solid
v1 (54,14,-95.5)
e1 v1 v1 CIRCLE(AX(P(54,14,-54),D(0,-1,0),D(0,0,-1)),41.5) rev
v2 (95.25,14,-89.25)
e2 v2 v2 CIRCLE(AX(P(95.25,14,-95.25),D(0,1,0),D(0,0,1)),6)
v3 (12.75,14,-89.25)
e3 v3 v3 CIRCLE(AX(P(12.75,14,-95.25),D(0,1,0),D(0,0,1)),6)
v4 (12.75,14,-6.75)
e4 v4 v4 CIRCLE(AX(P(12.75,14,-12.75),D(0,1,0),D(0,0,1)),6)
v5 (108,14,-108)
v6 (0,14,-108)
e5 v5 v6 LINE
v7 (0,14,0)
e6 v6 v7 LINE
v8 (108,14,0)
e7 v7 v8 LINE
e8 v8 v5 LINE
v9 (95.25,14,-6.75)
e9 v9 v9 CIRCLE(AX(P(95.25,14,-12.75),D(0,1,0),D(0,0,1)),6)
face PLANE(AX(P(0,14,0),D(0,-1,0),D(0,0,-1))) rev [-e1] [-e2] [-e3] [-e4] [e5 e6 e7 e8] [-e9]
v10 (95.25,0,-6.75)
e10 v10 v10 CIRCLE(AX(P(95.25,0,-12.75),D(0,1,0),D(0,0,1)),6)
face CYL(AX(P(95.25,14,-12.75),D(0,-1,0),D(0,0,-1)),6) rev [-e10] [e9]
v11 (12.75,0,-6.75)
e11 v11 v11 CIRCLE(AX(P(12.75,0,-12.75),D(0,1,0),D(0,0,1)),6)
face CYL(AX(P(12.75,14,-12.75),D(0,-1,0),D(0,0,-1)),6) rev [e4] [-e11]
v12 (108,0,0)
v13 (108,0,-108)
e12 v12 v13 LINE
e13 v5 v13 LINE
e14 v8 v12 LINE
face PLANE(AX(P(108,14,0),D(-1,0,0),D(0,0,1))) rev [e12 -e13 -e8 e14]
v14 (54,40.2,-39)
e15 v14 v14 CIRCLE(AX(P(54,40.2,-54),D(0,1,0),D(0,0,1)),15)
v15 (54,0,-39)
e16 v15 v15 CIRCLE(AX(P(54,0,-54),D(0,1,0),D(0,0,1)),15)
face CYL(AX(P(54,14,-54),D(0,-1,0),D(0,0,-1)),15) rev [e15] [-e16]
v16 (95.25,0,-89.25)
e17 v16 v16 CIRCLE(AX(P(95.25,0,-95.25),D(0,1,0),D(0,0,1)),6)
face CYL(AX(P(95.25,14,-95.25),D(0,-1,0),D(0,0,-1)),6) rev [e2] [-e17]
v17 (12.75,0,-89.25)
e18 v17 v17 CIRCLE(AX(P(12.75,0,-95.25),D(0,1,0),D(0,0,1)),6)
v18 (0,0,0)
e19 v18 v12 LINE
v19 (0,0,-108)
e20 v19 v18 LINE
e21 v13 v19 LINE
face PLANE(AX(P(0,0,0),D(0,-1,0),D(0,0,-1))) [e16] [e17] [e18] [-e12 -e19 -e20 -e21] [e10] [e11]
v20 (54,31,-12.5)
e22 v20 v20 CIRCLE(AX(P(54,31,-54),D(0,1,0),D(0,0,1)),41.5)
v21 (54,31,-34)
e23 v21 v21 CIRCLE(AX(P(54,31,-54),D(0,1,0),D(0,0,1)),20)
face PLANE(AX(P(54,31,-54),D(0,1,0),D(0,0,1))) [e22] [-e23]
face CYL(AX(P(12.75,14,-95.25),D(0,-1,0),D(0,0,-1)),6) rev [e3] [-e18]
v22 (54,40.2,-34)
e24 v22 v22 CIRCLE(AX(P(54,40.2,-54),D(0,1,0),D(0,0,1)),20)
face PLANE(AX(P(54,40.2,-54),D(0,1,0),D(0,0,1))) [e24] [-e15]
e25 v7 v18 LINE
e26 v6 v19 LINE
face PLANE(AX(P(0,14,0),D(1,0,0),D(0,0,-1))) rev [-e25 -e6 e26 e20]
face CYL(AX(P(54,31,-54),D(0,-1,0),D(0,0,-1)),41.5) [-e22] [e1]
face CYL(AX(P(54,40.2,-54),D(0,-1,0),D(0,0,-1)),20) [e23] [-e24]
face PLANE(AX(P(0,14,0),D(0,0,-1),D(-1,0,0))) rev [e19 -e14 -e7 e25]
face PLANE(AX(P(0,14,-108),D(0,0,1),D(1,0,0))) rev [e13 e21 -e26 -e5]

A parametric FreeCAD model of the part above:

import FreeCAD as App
import Part
import Sketcher
from FreeCAD import Vector
Q = App.Units.Quantity

doc = App.newDocument("Part")
params = doc.addObject("Spreadsheet::Sheet", "Params")
for row, (alias, value) in enumerate([
    ("sketch1_diameter", "12 mm"),
    ("sketch1_diameter2", "30 mm"),
    ("sketch1_width", "108 mm"),
    ("pad1_length", "14 mm"),
    ("sketch2_diameter", "40 mm"),
    ("sketch2_diameter2", "30 mm"),
    ("pad2_length", "26.2 mm"),
    ("sketch3_diameter", "83 mm"),
    ("sketch3_diameter2", "30 mm"),
    ("pad3_length", "17 mm"),
], start=1):
    params.set(f"A{row}", alias)
    params.set(f"B{row}", "=" + value)
    params.setAlias(f"B{row}", alias)

body = doc.addObject("PartDesign::Body", "Body")

# Sketch on XZ plane
sketch1 = body.newObject("Sketcher::SketchObject", "Sketch")
sketch1.AttachmentSupport = (doc.getObject("XZ_Plane"), [""])
sketch1.MapMode = "FlatFace"
sketch1.addGeometry(Part.LineSegment(Vector(0, -108, 0), Vector(0, 0, 0)), False)
sketch1.addGeometry(Part.LineSegment(Vector(0, 0, 0), Vector(108, 0, 0)), False)
sketch1.addGeometry(Part.LineSegment(Vector(108, 0, 0), Vector(108, -108, 0)), False)
sketch1.addGeometry(Part.LineSegment(Vector(108, -108, 0), Vector(0, -108, 0)), False)
sketch1.addGeometry(Part.Circle(Vector(13, -13, 0), Vector(0, 0, 1), 6), False)
sketch1.addGeometry(Part.Circle(Vector(95, -13, 0), Vector(0, 0, 1), 6), False)
sketch1.addGeometry(Part.Circle(Vector(13, -95, 0), Vector(0, 0, 1), 6), False)
sketch1.addGeometry(Part.Circle(Vector(54, -54, 0), Vector(0, 0, 1), 15), False)
sketch1.addGeometry(Part.Circle(Vector(95, -95, 0), Vector(0, 0, 1), 6), False)
sketch1.addConstraint(Sketcher.Constraint("Coincident", 0, 2, 1, 1))
sketch1.addConstraint(Sketcher.Constraint("Coincident", 1, 2, 2, 1))
sketch1.addConstraint(Sketcher.Constraint("Coincident", 2, 2, 3, 1))
sketch1.addConstraint(Sketcher.Constraint("Coincident", 3, 2, 0, 1))
sketch1.addConstraint(Sketcher.Constraint("Vertical", 0))
sketch1.addConstraint(Sketcher.Constraint("Horizontal", 1))
sketch1.addConstraint(Sketcher.Constraint("Vertical", 2))
sketch1.addConstraint(Sketcher.Constraint("Horizontal", 3))
sketch1.addConstraint(Sketcher.Constraint("Coincident", 0, 2, -1, 1))
sketch1.addConstraint(Sketcher.Constraint("Equal", 4, 5))
sketch1.addConstraint(Sketcher.Constraint("Equal", 5, 6))
sketch1.addConstraint(Sketcher.Constraint("Equal", 6, 8))
sketch1.addConstraint(Sketcher.Constraint("Horizontal", 4, 3, 5, 3))
sketch1.addConstraint(Sketcher.Constraint("Horizontal", 6, 3, 8, 3))
sketch1.addConstraint(Sketcher.Constraint("Vertical", 4, 3, 6, 3))
sketch1.addConstraint(Sketcher.Constraint("Vertical", 5, 3, 8, 3))
sketch1.addConstraint(Sketcher.Constraint("Equal", 3, 0))
sketch1.addConstraint(Sketcher.Constraint("Diameter", 4, Q("12 mm")))
sketch1.addConstraint(Sketcher.Constraint("Diameter", 7, Q("30 mm")))
sketch1.addConstraint(Sketcher.Constraint("DistanceX", 1, 1, 1, 2, Q("108 mm")))
sketch1.addConstraint(Sketcher.Constraint("DistanceX", -1, 1, 7, 3, Q("54 mm")))
sketch1.addConstraint(Sketcher.Constraint("DistanceY", 7, 3, -1, 1, Q("54 mm")))
sketch1.addConstraint(Sketcher.Constraint("DistanceX", 4, 3, 5, 3, Q("82.5 mm")))
sketch1.addConstraint(Sketcher.Constraint("DistanceY", 6, 3, 4, 3, Q("82.5 mm")))
sketch1.addConstraint(Sketcher.Constraint("DistanceX", -1, 1, 4, 3, Q("12.75 mm")))
sketch1.addConstraint(Sketcher.Constraint("DistanceY", 4, 3, -1, 1, Q("12.75 mm")))
sketch1.setExpression("Constraints[17]", "Params.sketch1_diameter")
sketch1.setExpression("Constraints[18]", "Params.sketch1_diameter2")
sketch1.setExpression("Constraints[19]", "Params.sketch1_width")
pad1 = body.newObject("PartDesign::Pad", "Pad")
pad1.Profile = sketch1
pad1.setExpression("Length", "Params.pad1_length")
pad1.Reversed = True

# Sketch on XZ plane
sketch2 = body.newObject("Sketcher::SketchObject", "Sketch001")
sketch2.AttachmentSupport = (doc.getObject("XZ_Plane"), [""])
sketch2.MapMode = "FlatFace"
sketch2.AttachmentOffset = App.Placement(Vector(0, 0, -14), App.Rotation())
sketch2.addGeometry(Part.Circle(Vector(54, -54, 0), Vector(0, 0, 1), 20), False)
sketch2.addGeometry(Part.Circle(Vector(54, -54, 0), Vector(0, 0, 1), 15), False)
sketch2.addConstraint(Sketcher.Constraint("Coincident", 1, 3, 0, 3))
sketch2.addConstraint(Sketcher.Constraint("Diameter", 0, Q("40 mm")))
sketch2.addConstraint(Sketcher.Constraint("Diameter", 1, Q("30 mm")))
sketch2.addConstraint(Sketcher.Constraint("DistanceX", -1, 1, 0, 3, Q("54 mm")))
sketch2.addConstraint(Sketcher.Constraint("DistanceY", 0, 3, -1, 1, Q("54 mm")))
sketch2.setExpression("Constraints[1]", "Params.sketch2_diameter")
sketch2.setExpression("Constraints[2]", "Params.sketch2_diameter2")
pad2 = body.newObject("PartDesign::Pad", "Pad001")
pad2.Profile = sketch2
pad2.setExpression("Length", "Params.pad2_length")
pad2.Reversed = True

# Sketch on XZ plane
sketch3 = body.newObject("Sketcher::SketchObject", "Sketch002")
sketch3.AttachmentSupport = (doc.getObject("XZ_Plane"), [""])
sketch3.MapMode = "FlatFace"
sketch3.AttachmentOffset = App.Placement(Vector(0, 0, -14), App.Rotation())
sketch3.addGeometry(Part.Circle(Vector(54, -54, 0), Vector(0, 0, 1), 42), False)
sketch3.addGeometry(Part.Circle(Vector(54, -54, 0), Vector(0, 0, 1), 15), False)
sketch3.addConstraint(Sketcher.Constraint("Coincident", 1, 3, 0, 3))
sketch3.addConstraint(Sketcher.Constraint("Diameter", 0, Q("83 mm")))
sketch3.addConstraint(Sketcher.Constraint("Diameter", 1, Q("30 mm")))
sketch3.addConstraint(Sketcher.Constraint("DistanceX", -1, 1, 0, 3, Q("54 mm")))
sketch3.addConstraint(Sketcher.Constraint("DistanceY", 0, 3, -1, 1, Q("54 mm")))
sketch3.setExpression("Constraints[1]", "Params.sketch3_diameter")
sketch3.setExpression("Constraints[2]", "Params.sketch3_diameter2")
pad3 = body.newObject("PartDesign::Pad", "Pad002")
pad3.Profile = sketch3
pad3.setExpression("Length", "Params.pad3_length")
pad3.Reversed = True

doc.recompute()
